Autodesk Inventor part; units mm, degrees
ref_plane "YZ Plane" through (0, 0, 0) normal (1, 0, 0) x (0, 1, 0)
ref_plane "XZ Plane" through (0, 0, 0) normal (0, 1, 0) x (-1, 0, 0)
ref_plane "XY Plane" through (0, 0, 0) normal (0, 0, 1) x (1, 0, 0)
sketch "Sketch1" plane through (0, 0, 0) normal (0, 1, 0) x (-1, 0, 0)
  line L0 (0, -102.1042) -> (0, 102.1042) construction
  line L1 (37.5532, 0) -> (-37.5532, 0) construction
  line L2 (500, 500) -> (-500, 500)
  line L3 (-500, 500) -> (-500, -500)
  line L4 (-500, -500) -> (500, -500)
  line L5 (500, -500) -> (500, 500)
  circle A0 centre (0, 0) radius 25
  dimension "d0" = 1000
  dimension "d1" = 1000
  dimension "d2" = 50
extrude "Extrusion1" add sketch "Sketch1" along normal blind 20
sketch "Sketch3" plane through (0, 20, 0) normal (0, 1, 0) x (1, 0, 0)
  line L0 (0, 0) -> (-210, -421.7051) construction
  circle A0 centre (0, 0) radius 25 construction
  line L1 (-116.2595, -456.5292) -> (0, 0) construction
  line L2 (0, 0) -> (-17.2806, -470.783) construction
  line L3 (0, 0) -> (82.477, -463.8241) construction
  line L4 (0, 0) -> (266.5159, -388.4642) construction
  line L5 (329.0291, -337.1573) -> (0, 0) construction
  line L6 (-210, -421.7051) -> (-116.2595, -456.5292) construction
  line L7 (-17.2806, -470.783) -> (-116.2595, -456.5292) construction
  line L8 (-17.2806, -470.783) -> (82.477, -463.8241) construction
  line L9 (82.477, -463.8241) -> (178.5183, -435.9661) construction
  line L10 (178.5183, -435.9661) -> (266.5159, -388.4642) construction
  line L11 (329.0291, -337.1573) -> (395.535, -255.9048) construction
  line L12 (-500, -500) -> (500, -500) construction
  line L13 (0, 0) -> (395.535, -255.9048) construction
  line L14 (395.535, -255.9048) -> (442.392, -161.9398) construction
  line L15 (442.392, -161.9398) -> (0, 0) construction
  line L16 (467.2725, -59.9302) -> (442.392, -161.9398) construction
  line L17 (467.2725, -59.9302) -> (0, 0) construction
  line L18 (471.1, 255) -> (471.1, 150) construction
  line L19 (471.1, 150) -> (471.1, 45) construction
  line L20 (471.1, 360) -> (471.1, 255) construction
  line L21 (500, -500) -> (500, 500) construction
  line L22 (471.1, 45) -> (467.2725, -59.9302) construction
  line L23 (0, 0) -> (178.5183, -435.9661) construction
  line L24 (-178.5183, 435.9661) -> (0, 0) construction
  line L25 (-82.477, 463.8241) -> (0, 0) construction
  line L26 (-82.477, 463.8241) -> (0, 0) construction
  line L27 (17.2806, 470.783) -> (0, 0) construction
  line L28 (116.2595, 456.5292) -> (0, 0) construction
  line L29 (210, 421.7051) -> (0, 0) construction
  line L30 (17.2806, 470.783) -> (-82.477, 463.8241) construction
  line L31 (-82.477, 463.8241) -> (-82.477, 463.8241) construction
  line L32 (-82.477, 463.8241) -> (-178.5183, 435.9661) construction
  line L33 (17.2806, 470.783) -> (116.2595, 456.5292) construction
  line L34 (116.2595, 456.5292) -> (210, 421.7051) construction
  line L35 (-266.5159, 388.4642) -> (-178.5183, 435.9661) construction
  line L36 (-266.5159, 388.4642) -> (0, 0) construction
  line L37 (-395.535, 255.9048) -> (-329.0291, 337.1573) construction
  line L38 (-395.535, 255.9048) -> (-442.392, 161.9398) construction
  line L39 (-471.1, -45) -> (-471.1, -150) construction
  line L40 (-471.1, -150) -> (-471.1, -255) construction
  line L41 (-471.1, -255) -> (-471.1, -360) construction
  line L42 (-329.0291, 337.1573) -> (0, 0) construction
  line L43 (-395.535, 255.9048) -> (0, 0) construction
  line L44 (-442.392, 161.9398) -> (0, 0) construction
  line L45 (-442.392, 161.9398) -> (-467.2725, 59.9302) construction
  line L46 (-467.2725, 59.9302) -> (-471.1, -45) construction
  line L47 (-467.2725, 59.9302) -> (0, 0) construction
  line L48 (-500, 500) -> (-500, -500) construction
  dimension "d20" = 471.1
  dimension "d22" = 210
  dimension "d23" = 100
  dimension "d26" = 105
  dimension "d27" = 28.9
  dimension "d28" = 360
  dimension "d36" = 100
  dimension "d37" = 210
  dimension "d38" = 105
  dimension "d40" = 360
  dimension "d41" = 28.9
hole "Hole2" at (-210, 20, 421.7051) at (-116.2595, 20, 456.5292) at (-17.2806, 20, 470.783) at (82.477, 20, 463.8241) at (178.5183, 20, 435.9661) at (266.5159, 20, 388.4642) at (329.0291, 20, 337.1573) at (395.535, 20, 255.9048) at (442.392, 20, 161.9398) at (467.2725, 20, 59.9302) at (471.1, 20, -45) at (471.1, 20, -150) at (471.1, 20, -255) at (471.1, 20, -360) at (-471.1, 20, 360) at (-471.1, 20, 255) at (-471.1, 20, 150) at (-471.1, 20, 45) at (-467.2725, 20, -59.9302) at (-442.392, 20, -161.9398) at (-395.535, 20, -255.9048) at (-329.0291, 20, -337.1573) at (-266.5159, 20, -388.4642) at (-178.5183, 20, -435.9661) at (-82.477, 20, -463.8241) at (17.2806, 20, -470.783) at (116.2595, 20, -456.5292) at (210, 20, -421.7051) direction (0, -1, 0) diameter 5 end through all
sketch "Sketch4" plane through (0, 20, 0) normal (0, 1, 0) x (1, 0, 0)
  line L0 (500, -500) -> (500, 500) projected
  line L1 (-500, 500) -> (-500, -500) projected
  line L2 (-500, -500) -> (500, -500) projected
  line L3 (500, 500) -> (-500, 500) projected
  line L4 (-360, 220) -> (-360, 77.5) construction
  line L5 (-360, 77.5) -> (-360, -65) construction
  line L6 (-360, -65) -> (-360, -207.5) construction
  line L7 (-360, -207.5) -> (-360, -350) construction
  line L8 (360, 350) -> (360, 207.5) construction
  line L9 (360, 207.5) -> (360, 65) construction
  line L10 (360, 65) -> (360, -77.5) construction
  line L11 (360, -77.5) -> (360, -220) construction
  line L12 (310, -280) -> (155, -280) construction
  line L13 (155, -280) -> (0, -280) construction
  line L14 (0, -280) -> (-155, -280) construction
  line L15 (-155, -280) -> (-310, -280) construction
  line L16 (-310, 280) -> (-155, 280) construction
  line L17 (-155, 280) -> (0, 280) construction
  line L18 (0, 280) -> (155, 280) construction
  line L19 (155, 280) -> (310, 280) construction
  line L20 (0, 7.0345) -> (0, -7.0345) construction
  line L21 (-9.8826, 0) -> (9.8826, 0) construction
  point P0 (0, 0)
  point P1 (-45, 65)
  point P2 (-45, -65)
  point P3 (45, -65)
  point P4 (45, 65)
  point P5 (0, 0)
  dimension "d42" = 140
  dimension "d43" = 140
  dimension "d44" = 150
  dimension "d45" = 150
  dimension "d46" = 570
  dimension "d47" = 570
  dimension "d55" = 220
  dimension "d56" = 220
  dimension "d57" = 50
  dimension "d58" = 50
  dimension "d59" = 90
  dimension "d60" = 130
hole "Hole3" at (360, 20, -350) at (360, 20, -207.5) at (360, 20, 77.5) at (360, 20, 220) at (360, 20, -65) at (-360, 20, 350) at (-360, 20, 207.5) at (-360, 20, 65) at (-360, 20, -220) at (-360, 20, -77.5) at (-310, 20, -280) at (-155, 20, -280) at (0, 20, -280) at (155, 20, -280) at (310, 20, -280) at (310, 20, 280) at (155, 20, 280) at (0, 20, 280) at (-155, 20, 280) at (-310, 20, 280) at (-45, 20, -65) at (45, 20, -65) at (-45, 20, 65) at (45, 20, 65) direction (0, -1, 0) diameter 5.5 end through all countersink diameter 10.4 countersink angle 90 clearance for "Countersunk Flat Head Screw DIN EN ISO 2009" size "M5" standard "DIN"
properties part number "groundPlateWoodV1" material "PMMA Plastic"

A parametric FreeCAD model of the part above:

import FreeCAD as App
import Part
import Sketcher

V = App.Vector
Q = App.Units.Quantity

doc = App.newDocument("Part")
body = doc.addObject("PartDesign::Body", "Body")

sketch1 = body.newObject("Sketcher::SketchObject", "Sketch")
sketch1.AttachmentSupport = (doc.getObject("XZ_Plane"), [""])
sketch1.MapMode = "FlatFace"
sketch1.addGeometry(Part.LineSegment(V(-500, -500, 0), V(-500, 500, 0)), False)
sketch1.addGeometry(Part.LineSegment(V(-500, 500, 0), V(500, 500, 0)), False)
sketch1.addGeometry(Part.LineSegment(V(500, 500, 0), V(500, -500, 0)), False)
sketch1.addGeometry(Part.LineSegment(V(500, -500, 0), V(-500, -500, 0)), False)
sketch1.addGeometry(Part.Circle(V(0, 0, 0), V(0, 0, 1), 25), False)
sketch1.addConstraint(Sketcher.Constraint("Coincident", 0, 2, 1, 1))
sketch1.addConstraint(Sketcher.Constraint("Coincident", 1, 2, 2, 1))
sketch1.addConstraint(Sketcher.Constraint("Coincident", 2, 2, 3, 1))
sketch1.addConstraint(Sketcher.Constraint("Coincident", 3, 2, 0, 1))
sketch1.addConstraint(Sketcher.Constraint("Vertical", 0))
sketch1.addConstraint(Sketcher.Constraint("Horizontal", 1))
sketch1.addConstraint(Sketcher.Constraint("Vertical", 2))
sketch1.addConstraint(Sketcher.Constraint("Horizontal", 3))
sketch1.addConstraint(Sketcher.Constraint("Coincident", 4, 3, -1, 1))
sketch1.addConstraint(Sketcher.Constraint("Symmetric", 0, 2, 2, 2, -1, 1))
sketch1.addConstraint(Sketcher.Constraint("Equal", 3, 0))
sketch1.addConstraint(Sketcher.Constraint("Diameter", 4, Q("50 mm")))
sketch1.addConstraint(Sketcher.Constraint("DistanceX", 1, 1, 1, 2, Q("1000 mm")))
pad1 = body.newObject("PartDesign::Pad", "Pad")
pad1.Profile = sketch1
pad1.Length = 20
pad1.Reversed = True

sketch2 = body.newObject("Sketcher::SketchObject", "Sketch001")
sketch2.AttachmentSupport = (doc.getObject("XZ_Plane"), [""])
sketch2.MapMode = "FlatFace"
sketch2.AttachmentOffset = App.Placement(V(0, 0, -20), App.Rotation())
sketch2.addGeometry(Part.Circle(V(-210, 421.7, 0), V(0, 0, 1), 2.5), False)
sketch2.addGeometry(Part.Circle(V(-116.3, 456.5, 0), V(0, 0, 1), 2.5), False)
sketch2.addGeometry(Part.Circle(V(-17.3, 470.8, 0), V(0, 0, 1), 2.5), False)
sketch2.addGeometry(Part.Circle(V(82.5, 463.8, 0), V(0, 0, 1), 2.5), False)
sketch2.addGeometry(Part.Circle(V(178.5, 436, 0), V(0, 0, 1), 2.5), False)
sketch2.addGeometry(Part.Circle(V(266.5, 388.5, 0), V(0, 0, 1), 2.5), False)
sketch2.addGeometry(Part.Circle(V(329, 337.2, 0), V(0, 0, 1), 2.5), False)
sketch2.addGeometry(Part.Circle(V(395.5, 255.9, 0), V(0, 0, 1), 2.5), False)
sketch2.addGeometry(Part.Circle(V(442.4, 161.9, 0), V(0, 0, 1), 2.5), False)
sketch2.addGeometry(Part.Circle(V(467.3, 59.9, 0), V(0, 0, 1), 2.5), False)
sketch2.addGeometry(Part.Circle(V(471.1, -45, 0), V(0, 0, 1), 2.5), False)
sketch2.addGeometry(Part.Circle(V(471.1, -150, 0), V(0, 0, 1), 2.5), False)
sketch2.addGeometry(Part.Circle(V(471.1, -255, 0), V(0, 0, 1), 2.5), False)
sketch2.addGeometry(Part.Circle(V(471.1, -360, 0), V(0, 0, 1), 2.5), False)
sketch2.addGeometry(Part.Circle(V(-471.1, 360, 0), V(0, 0, 1), 2.5), False)
sketch2.addGeometry(Part.Circle(V(-471.1, 255, 0), V(0, 0, 1), 2.5), False)
sketch2.addGeometry(Part.Circle(V(-471.1, 150, 0), V(0, 0, 1), 2.5), False)
sketch2.addGeometry(Part.Circle(V(-471.1, 45, 0), V(0, 0, 1), 2.5), False)
sketch2.addGeometry(Part.Circle(V(-467.3, -59.9, 0), V(0, 0, 1), 2.5), False)
sketch2.addGeometry(Part.Circle(V(-442.4, -161.9, 0), V(0, 0, 1), 2.5), False)
sketch2.addGeometry(Part.Circle(V(-395.5, -255.9, 0), V(0, 0, 1), 2.5), False)
sketch2.addGeometry(Part.Circle(V(-329, -337.2, 0), V(0, 0, 1), 2.5), False)
sketch2.addGeometry(Part.Circle(V(-266.5, -388.5, 0), V(0, 0, 1), 2.5), False)
sketch2.addGeometry(Part.Circle(V(-178.5, -436, 0), V(0, 0, 1), 2.5), False)
sketch2.addGeometry(Part.Circle(V(-82.5, -463.8, 0), V(0, 0, 1), 2.5), False)
sketch2.addGeometry(Part.Circle(V(17.3, -470.8, 0), V(0, 0, 1), 2.5), False)
sketch2.addGeometry(Part.Circle(V(116.3, -456.5, 0), V(0, 0, 1), 2.5), False)
sketch2.addGeometry(Part.Circle(V(210, -421.7, 0), V(0, 0, 1), 2.5), False)
sketch2.addConstraint(Sketcher.Constraint("Equal", 0, 1))
sketch2.addConstraint(Sketcher.Constraint("Equal", 1, 2))
sketch2.addConstraint(Sketcher.Constraint("Equal", 2, 3))
sketch2.addConstraint(Sketcher.Constraint("Equal", 3, 4))
sketch2.addConstraint(Sketcher.Constraint("Equal", 4, 5))
sketch2.addConstraint(Sketcher.Constraint("Equal", 5, 6))
sketch2.addConstraint(Sketcher.Constraint("Equal", 6, 7))
sketch2.addConstraint(Sketcher.Constraint("Equal", 7, 8))
sketch2.addConstraint(Sketcher.Constraint("Equal", 8, 9))
sketch2.addConstraint(Sketcher.Constraint("Equal", 9, 10))
sketch2.addConstraint(Sketcher.Constraint("Equal", 10, 11))
sketch2.addConstraint(Sketcher.Constraint("Equal", 11, 12))
sketch2.addConstraint(Sketcher.Constraint("Equal", 12, 13))
sketch2.addConstraint(Sketcher.Constraint("Equal", 13, 14))
sketch2.addConstraint(Sketcher.Constraint("Equal", 14, 15))
sketch2.addConstraint(Sketcher.Constraint("Equal", 15, 16))
sketch2.addConstraint(Sketcher.Constraint("Equal", 16, 17))
sketch2.addConstraint(Sketcher.Constraint("Equal", 17, 18))
sketch2.addConstraint(Sketcher.Constraint("Equal", 18, 19))
sketch2.addConstraint(Sketcher.Constraint("Equal", 19, 20))
sketch2.addConstraint(Sketcher.Constraint("Equal", 20, 21))
sketch2.addConstraint(Sketcher.Constraint("Equal", 21, 22))
sketch2.addConstraint(Sketcher.Constraint("Equal", 22, 23))
sketch2.addConstraint(Sketcher.Constraint("Equal", 23, 24))
sketch2.addConstraint(Sketcher.Constraint("Equal", 24, 25))
sketch2.addConstraint(Sketcher.Constraint("Equal", 25, 26))
sketch2.addConstraint(Sketcher.Constraint("Equal", 26, 27))
sketch2.addConstraint(Sketcher.Constraint("Symmetric", 13, 3, 14, 3, -1, 1))
sketch2.addConstraint(Sketcher.Constraint("Symmetric", 12, 3, 15, 3, -1, 1))
sketch2.addConstraint(Sketcher.Constraint("Symmetric", 11, 3, 16, 3, -1, 1))
sketch2.addConstraint(Sketcher.Constraint("Symmetric", 10, 3, 17, 3, -1, 1))
sketch2.addConstraint(Sketcher.Constraint("Symmetric", 9, 3, 18, 3, -1, 1))
sketch2.addConstraint(Sketcher.Constraint("Symmetric", 8, 3, 19, 3, -1, 1))
sketch2.addConstraint(Sketcher.Constraint("Symmetric", 7, 3, 20, 3, -1, 1))
sketch2.addConstraint(Sketcher.Constraint("Symmetric", 6, 3, 21, 3, -1, 1))
sketch2.addConstraint(Sketcher.Constraint("Symmetric", 5, 3, 22, 3, -1, 1))
sketch2.addConstraint(Sketcher.Constraint("Symmetric", 4, 3, 23, 3, -1, 1))
sketch2.addConstraint(Sketcher.Constraint("Symmetric", 3, 3, 24, 3, -1, 1))
sketch2.addConstraint(Sketcher.Constraint("Symmetric", 2, 3, 25, 3, -1, 1))
sketch2.addConstraint(Sketcher.Constraint("Symmetric", 1, 3, 26, 3, -1, 1))
sketch2.addConstraint(Sketcher.Constraint("Symmetric", 0, 3, 27, 3, -1, 1))
sketch2.addConstraint(Sketcher.Constraint("Vertical", 10, 3, 11, 3))
sketch2.addConstraint(Sketcher.Constraint("Vertical", 11, 3, 12, 3))
sketch2.addConstraint(Sketcher.Constraint("Vertical", 12, 3, 13, 3))
sketch2.addConstraint(Sketcher.Constraint("Diameter", 0, Q("5 mm")))
sketch2.addConstraint(Sketcher.Constraint("DistanceX", 0, 3, -1, 1, Q("210 mm")))
sketch2.addConstraint(Sketcher.Constraint("DistanceY", 10, 3, -1, 1, Q("45 mm")))
sketch2.addConstraint(Sketcher.Constraint("DistanceY", 11, 3, -1, 1, Q("150 mm")))
sketch2.addConstraint(Sketcher.Constraint("DistanceY", 12, 3, -1, 1, Q("255 mm")))
sketch2.addConstraint(Sketcher.Constraint("DistanceY", 13, 3, -1, 1, Q("360 mm")))
sketch2.addConstraint(Sketcher.Constraint("DistanceX", -1, 1, 10, 3, Q("471.1 mm")))
sketch2.addConstraint(Sketcher.Constraint("DistanceY", 5, 3, 3, 3, Q("75.36 mm")))
sketch2.addConstraint(Sketcher.Constraint("DistanceY", -1, 1, 0, 3, Q("421.705 mm")))
sketch2.addConstraint(Sketcher.Constraint("DistanceY", -1, 1, 2, 3, Q("470.783 mm")))
sketch2.addConstraint(Sketcher.Constraint("DistanceX", -1, 1, 3, 3, Q("82.477 mm")))
sketch2.addConstraint(Sketcher.Constraint("DistanceY", -1, 1, 3, 3, Q("463.824 mm")))
sketch2.addConstraint(Sketcher.Constraint("DistanceY", -1, 1, 4, 3, Q("435.966 mm")))
sketch2.addConstraint(Sketcher.Constraint("DistanceX", -1, 1, 5, 3, Q("266.516 mm")))
sketch2.addConstraint(Sketcher.Constraint("DistanceX", -1, 1, 6, 3, Q("329.029 mm")))
sketch2.addConstraint(Sketcher.Constraint("DistanceX", -1, 1, 7, 3, Q("395.535 mm")))
sketch2.addConstraint(Sketcher.Constraint("DistanceX", -1, 1, 8, 3, Q("442.392 mm")))
sketch2.addConstraint(Sketcher.Constraint("DistanceY", 0, 3, 1, 3, Q("34.824 mm")))
sketch2.addConstraint(Sketcher.Constraint("DistanceX", 1, 3, 2, 3, Q("98.979 mm")))
sketch2.addConstraint(Sketcher.Constraint("DistanceX", 2, 3, 4, 3, Q("195.799 mm")))
sketch2.addConstraint(Sketcher.Constraint("DistanceY", 6, 3, 5, 3, Q("51.307 mm")))
sketch2.addConstraint(Sketcher.Constraint("DistanceY", 8, 3, 7, 3, Q("93.965 mm")))
sketch2.addConstraint(Sketcher.Constraint("DistanceY", 9, 3, 6, 3, Q("277.227 mm")))
sketch2.addConstraint(Sketcher.Constraint("DistanceX", 1, 3, -1, 1, Q("116.2595 mm")))
sketch2.addConstraint(Sketcher.Constraint("DistanceY", -1, 1, 7, 3, Q("255.9048 mm")))
sketch2.addConstraint(Sketcher.Constraint("DistanceX", -1, 1, 9, 3, Q("467.2725 mm")))
doc.recompute()
hole = body.newObject("PartDesign::Hole", "Hole")
hole.Profile = sketch2
hole.ThreadType = "None"
hole.Diameter = 5
hole.DepthType = "ThroughAll"
hole.Reversed = True

sketch3 = body.newObject("Sketcher::SketchObject", "Sketch002")
sketch3.AttachmentSupport = (doc.getObject("XZ_Plane"), [""])
sketch3.MapMode = "FlatFace"
sketch3.AttachmentOffset = App.Placement(V(0, 0, -20), App.Rotation())
sketch3.addGeometry(Part.Circle(V(360, -350, 0), V(0, 0, 1), 2.8), False)
sketch3.addGeometry(Part.Circle(V(360, -207.5, 0), V(0, 0, 1), 2.8), False)
sketch3.addGeometry(Part.Circle(V(360, 77.5, 0), V(0, 0, 1), 2.8), False)
sketch3.addGeometry(Part.Circle(V(360, 220, 0), V(0, 0, 1), 2.8), False)
sketch3.addGeometry(Part.Circle(V(360, -65, 0), V(0, 0, 1), 2.8), False)
sketch3.addGeometry(Part.Circle(V(-360, 350, 0), V(0, 0, 1), 2.8), False)
sketch3.addGeometry(Part.Circle(V(-360, 207.5, 0), V(0, 0, 1), 2.8), False)
sketch3.addGeometry(Part.Circle(V(-360, 65, 0), V(0, 0, 1), 2.8), False)
sketch3.addGeometry(Part.Circle(V(-360, -220, 0), V(0, 0, 1), 2.8), False)
sketch3.addGeometry(Part.Circle(V(-360, -77.5, 0), V(0, 0, 1), 2.8), False)
sketch3.addGeometry(Part.Circle(V(-310, -280, 0), V(0, 0, 1), 2.8), False)
sketch3.addGeometry(Part.Circle(V(-155, -280, 0), V(0, 0, 1), 2.8), False)
sketch3.addGeometry(Part.Circle(V(0, -280, 0), V(0, 0, 1), 2.8), False)
sketch3.addGeometry(Part.Circle(V(155, -280, 0), V(0, 0, 1), 2.8), False)
sketch3.addGeometry(Part.Circle(V(310, -280, 0), V(0, 0, 1), 2.8), False)
sketch3.addGeometry(Part.Circle(V(310, 280, 0), V(0, 0, 1), 2.8), False)
sketch3.addGeometry(Part.Circle(V(155, 280, 0), V(0, 0, 1), 2.8), False)
sketch3.addGeometry(Part.Circle(V(0, 280, 0), V(0, 0, 1), 2.8), False)
sketch3.addGeometry(Part.Circle(V(-155, 280, 0), V(0, 0, 1), 2.8), False)
sketch3.addGeometry(Part.Circle(V(-310, 280, 0), V(0, 0, 1), 2.8), False)
sketch3.addGeometry(Part.Circle(V(-45, -65, 0), V(0, 0, 1), 2.8), False)
sketch3.addGeometry(Part.Circle(V(45, -65, 0), V(0, 0, 1), 2.8), False)
sketch3.addGeometry(Part.Circle(V(-45, 65, 0), V(0, 0, 1), 2.8), False)
sketch3.addGeometry(Part.Circle(V(45, 65, 0), V(0, 0, 1), 2.8), False)
sketch3.addConstraint(Sketcher.Constraint("Equal", 0, 1))
sketch3.addConstraint(Sketcher.Constraint("Equal", 1, 2))
sketch3.addConstraint(Sketcher.Constraint("Equal", 2, 3))
sketch3.addConstraint(Sketcher.Constraint("Equal", 3, 4))
sketch3.addConstraint(Sketcher.Constraint("Equal", 4, 5))
sketch3.addConstraint(Sketcher.Constraint("Equal", 5, 6))
sketch3.addConstraint(Sketcher.Constraint("Equal", 6, 7))
sketch3.addConstraint(Sketcher.Constraint("Equal", 7, 8))
sketch3.addConstraint(Sketcher.Constraint("Equal", 8, 9))
sketch3.addConstraint(Sketcher.Constraint("Equal", 9, 10))
sketch3.addConstraint(Sketcher.Constraint("Equal", 10, 11))
sketch3.addConstraint(Sketcher.Constraint("Equal", 11, 12))
sketch3.addConstraint(Sketcher.Constraint("Equal", 12, 13))
sketch3.addConstraint(Sketcher.Constraint("Equal", 13, 14))
sketch3.addConstraint(Sketcher.Constraint("Equal", 14, 15))
sketch3.addConstraint(Sketcher.Constraint("Equal", 15, 16))
sketch3.addConstraint(Sketcher.Constraint("Equal", 16, 17))
sketch3.addConstraint(Sketcher.Constraint("Equal", 17, 18))
sketch3.addConstraint(Sketcher.Constraint("Equal", 18, 19))
sketch3.addConstraint(Sketcher.Constraint("Equal", 19, 20))
sketch3.addConstraint(Sketcher.Constraint("Equal", 20, 21))
sketch3.addConstraint(Sketcher.Constraint("Equal", 21, 22))
sketch3.addConstraint(Sketcher.Constraint("Equal", 22, 23))
sketch3.addConstraint(Sketcher.Constraint("Symmetric", 0, 3, 5, 3, -1, 1))
sketch3.addConstraint(Sketcher.Constraint("Symmetric", 1, 3, 6, 3, -1, 1))
sketch3.addConstraint(Sketcher.Constraint("Symmetric", 4, 3, 7, 3, -1, 1))
sketch3.addConstraint(Sketcher.Constraint("Symmetric", 3, 3, 8, 3, -1, 1))
sketch3.addConstraint(Sketcher.Constraint("Symmetric", 2, 3, 9, 3, -1, 1))
sketch3.addConstraint(Sketcher.Constraint("Symmetric", 10, 3, 15, 3, -1, 1))
sketch3.addConstraint(Sketcher.Constraint("Symmetric", 11, 3, 16, 3, -1, 1))
sketch3.addConstraint(Sketcher.Constraint("Symmetric", 12, 3, 17, 3, -1, 1))
sketch3.addConstraint(Sketcher.Constraint("Symmetric", 13, 3, 18, 3, -1, 1))
sketch3.addConstraint(Sketcher.Constraint("Symmetric", 14, 3, 19, 3, -1, 1))
sketch3.addConstraint(Sketcher.Constraint("Symmetric", 21, 3, 22, 3, -1, 1))
sketch3.addConstraint(Sketcher.Constraint("Symmetric", 20, 3, 23, 3, -1, 1))
sketch3.addConstraint(Sketcher.Constraint("Symmetric", 11, 3, 13, 3, -2))
sketch3.addConstraint(Sketcher.Constraint("Symmetric", 10, 3, 14, 3, -2))
sketch3.addConstraint(Sketcher.Constraint("Symmetric", 20, 3, 21, 3, -2))
sketch3.addConstraint(Sketcher.Constraint("PointOnObject", 12, 3, -2))
sketch3.addConstraint(Sketcher.Constraint("Horizontal", 10, 3, 11, 3))
sketch3.addConstraint(Sketcher.Constraint("Horizontal", 11, 3, 12, 3))
sketch3.addConstraint(Sketcher.Constraint("Horizontal", 4, 3, 20, 3))
sketch3.addConstraint(Sketcher.Constraint("Vertical", 0, 3, 1, 3))
sketch3.addConstraint(Sketcher.Constraint("Vertical", 1, 3, 2, 3))
sketch3.addConstraint(Sketcher.Constraint("Vertical", 2, 3, 3, 3))
sketch3.addConstraint(Sketcher.Constraint("Vertical", 3, 3, 4, 3))
sketch3.addConstraint(Sketcher.Constraint("Diameter", 0, Q("5.5 mm")))
sketch3.addConstraint(Sketcher.Constraint("DistanceX", -1, 1, 0, 3, Q("360 mm")))
sketch3.addConstraint(Sketcher.Constraint("DistanceY", 0, 3, -1, 1, Q("350 mm")))
sketch3.addConstraint(Sketcher.Constraint("DistanceY", -1, 1, 3, 3, Q("220 mm")))
sketch3.addConstraint(Sketcher.Constraint("DistanceY", 4, 3, -1, 1, Q("65 mm")))
sketch3.addConstraint(Sketcher.Constraint("DistanceX", 10, 3, -1, 1, Q("310 mm")))
sketch3.addConstraint(Sketcher.Constraint("DistanceY", 10, 3, -1, 1, Q("280 mm")))
sketch3.addConstraint(Sketcher.Constraint("DistanceX", 11, 3, -1, 1, Q("155 mm")))
sketch3.addConstraint(Sketcher.Constraint("DistanceX", 20, 3, -1, 1, Q("45 mm")))
sketch3.addConstraint(Sketcher.Constraint("DistanceY", 1, 3, 2, 3, Q("285 mm")))
sketch3.addConstraint(Sketcher.Constraint("DistanceY", 2, 3, 6, 3, Q("130 mm")))
doc.recompute()
hole2 = body.newObject("PartDesign::Hole", "Hole001")
hole2.Profile = sketch3
hole2.ThreadType = "None"
hole2.Diameter = 5.5
hole2.DepthType = "ThroughAll"
hole2.HoleCutType = "Countersink"
hole2.HoleCutDiameter = 10.4
hole2.HoleCutCountersinkAngle = 90
hole2.Reversed = True

doc.recompute()
